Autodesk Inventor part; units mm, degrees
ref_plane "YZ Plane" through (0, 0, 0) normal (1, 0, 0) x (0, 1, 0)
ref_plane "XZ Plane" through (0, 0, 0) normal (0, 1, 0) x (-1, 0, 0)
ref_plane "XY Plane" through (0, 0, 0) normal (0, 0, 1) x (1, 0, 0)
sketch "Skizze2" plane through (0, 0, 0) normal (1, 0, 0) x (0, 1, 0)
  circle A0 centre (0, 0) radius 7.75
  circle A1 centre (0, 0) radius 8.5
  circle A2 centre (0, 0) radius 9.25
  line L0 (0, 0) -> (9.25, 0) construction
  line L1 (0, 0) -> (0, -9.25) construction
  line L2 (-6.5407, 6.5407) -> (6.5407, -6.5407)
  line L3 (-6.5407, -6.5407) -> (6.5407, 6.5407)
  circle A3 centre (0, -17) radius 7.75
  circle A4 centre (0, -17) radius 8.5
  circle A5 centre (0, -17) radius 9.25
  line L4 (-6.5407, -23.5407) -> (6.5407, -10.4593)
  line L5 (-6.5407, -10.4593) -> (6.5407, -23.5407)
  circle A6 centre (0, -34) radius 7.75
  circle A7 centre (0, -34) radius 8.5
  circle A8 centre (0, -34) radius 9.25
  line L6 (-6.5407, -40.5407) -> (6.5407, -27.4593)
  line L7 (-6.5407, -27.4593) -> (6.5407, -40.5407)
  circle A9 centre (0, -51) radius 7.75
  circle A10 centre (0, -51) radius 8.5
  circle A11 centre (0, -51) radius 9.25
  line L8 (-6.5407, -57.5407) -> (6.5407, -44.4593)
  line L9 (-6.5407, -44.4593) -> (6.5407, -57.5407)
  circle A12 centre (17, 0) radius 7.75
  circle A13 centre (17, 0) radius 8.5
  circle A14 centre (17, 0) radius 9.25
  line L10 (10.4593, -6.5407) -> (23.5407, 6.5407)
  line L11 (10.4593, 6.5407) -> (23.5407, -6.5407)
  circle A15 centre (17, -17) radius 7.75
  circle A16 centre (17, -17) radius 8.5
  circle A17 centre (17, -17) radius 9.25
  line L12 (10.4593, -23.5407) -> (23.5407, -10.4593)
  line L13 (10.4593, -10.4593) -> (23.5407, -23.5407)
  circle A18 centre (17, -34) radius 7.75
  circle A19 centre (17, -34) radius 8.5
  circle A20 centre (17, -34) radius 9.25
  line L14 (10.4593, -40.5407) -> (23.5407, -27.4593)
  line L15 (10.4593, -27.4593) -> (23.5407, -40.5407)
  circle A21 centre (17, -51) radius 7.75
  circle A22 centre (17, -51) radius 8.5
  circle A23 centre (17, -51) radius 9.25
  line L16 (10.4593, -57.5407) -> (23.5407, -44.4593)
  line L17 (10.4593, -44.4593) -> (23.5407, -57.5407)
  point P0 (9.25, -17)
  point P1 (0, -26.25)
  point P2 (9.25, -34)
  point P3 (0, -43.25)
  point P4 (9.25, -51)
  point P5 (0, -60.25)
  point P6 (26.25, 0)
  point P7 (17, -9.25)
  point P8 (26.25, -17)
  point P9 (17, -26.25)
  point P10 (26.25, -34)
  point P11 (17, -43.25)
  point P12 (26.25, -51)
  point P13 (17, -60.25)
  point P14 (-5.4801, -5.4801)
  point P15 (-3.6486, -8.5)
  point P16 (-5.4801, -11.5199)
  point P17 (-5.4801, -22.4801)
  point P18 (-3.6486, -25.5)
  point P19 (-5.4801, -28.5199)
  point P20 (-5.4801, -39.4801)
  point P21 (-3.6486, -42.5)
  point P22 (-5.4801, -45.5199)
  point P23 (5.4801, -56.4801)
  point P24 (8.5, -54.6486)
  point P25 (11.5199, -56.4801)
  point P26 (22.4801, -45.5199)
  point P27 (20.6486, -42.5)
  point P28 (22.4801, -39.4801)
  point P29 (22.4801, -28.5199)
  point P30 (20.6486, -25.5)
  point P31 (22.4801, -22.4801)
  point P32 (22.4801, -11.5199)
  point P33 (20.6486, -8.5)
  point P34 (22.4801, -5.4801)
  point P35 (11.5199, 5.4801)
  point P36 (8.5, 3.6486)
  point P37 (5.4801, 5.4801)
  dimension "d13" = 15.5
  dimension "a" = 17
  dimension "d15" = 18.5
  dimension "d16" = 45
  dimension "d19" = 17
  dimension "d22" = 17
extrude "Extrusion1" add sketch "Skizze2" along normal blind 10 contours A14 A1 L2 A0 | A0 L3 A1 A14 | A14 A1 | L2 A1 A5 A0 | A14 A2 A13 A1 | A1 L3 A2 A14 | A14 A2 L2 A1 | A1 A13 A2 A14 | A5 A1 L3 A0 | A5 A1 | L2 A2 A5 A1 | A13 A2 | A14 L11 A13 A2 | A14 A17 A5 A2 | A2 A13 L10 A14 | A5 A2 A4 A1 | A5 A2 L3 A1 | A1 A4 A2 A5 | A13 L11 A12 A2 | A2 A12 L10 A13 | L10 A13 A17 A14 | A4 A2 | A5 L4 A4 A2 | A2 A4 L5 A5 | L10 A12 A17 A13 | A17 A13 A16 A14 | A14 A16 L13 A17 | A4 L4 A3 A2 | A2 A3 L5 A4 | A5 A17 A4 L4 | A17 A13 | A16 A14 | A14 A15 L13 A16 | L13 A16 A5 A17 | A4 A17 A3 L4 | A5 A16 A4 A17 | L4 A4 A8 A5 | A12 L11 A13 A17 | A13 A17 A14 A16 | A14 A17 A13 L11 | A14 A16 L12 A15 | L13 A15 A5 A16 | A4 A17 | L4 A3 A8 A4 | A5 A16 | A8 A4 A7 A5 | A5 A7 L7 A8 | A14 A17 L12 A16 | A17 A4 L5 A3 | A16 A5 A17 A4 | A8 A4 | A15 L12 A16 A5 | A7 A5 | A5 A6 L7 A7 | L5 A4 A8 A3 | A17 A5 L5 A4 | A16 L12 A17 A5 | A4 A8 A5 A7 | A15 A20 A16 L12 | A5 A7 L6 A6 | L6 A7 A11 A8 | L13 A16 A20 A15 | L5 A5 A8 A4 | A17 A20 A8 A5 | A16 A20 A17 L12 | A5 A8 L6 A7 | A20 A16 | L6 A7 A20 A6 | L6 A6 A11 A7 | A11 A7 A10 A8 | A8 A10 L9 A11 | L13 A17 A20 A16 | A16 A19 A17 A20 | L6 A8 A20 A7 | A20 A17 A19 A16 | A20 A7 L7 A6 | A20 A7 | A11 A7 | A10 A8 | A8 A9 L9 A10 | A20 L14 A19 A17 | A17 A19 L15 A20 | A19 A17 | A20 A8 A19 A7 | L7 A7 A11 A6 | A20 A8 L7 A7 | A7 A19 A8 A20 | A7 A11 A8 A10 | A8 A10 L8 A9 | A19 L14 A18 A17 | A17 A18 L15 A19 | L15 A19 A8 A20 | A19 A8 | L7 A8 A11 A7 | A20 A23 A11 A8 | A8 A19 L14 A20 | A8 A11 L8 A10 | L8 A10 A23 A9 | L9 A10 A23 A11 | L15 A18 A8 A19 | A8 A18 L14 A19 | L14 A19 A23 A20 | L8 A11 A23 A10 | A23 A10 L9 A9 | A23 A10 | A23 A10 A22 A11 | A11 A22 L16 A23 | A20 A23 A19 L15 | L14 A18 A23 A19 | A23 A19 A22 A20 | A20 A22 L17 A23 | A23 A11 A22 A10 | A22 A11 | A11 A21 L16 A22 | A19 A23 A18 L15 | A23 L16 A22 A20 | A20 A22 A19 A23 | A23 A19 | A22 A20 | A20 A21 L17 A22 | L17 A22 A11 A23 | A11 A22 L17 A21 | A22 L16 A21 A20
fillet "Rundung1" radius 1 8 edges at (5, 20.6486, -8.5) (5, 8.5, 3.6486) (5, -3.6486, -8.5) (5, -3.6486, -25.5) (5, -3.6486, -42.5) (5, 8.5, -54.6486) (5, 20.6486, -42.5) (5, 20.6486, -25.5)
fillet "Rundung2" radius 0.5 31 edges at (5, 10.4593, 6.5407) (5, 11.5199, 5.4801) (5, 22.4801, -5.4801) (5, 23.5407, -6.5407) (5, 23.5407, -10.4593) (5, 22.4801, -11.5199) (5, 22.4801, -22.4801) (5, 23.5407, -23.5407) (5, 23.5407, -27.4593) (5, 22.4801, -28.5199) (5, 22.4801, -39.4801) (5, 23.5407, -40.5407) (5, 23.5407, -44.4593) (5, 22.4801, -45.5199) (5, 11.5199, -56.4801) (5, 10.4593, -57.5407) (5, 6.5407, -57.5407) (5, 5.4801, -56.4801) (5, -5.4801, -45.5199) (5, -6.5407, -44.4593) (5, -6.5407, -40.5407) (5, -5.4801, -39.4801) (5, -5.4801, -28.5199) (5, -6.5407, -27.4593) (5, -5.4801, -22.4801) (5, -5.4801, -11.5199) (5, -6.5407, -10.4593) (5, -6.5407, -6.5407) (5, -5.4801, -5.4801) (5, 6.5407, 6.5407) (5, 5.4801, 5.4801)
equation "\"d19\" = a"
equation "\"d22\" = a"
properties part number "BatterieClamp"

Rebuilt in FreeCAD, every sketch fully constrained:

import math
import FreeCAD as App
import Part
import Sketcher
Q = App.Units.Quantity


def edges_at(feature, points):
    """Names of the edges that pass closest to the given points."""
    edges = feature.Shape.Edges
    near = lambda p: min(range(len(edges)), key=lambda i: edges[i].distToShape(Part.Vertex(*p))[0])
    return sorted({f"Edge{near(p) + 1}" for p in points})

doc = App.newDocument("Part")
body = doc.addObject("PartDesign::Body", "Body")

# Sketch on YZ plane
sketch1 = body.newObject("Sketcher::SketchObject", "Sketch")
sketch1.AttachmentSupport = (doc.getObject("YZ_Plane"), [""])
sketch1.MapMode = "FlatFace"
sketch1.addGeometry([
    Part.LineSegment(App.Vector(-5.5, -5.5, 0), App.Vector(-6.5, -6.5, 0)),  # 0
    Part.ArcOfCircle(Part.Circle(App.Vector(0, 0, 0), App.Vector(0, 0, 1), 9.2), math.radians(-135), math.radians(-113)),  # 1
    Part.ArcOfCircle(Part.Circle(App.Vector(0, -17, 0), App.Vector(0, 0, 1), 9.2), math.radians(113), math.radians(135)),  # 2
    Part.LineSegment(App.Vector(-6.5, -10.5, 0), App.Vector(-5.5, -11.5, 0)),  # 3
    Part.ArcOfCircle(Part.Circle(App.Vector(0, -17, 0), App.Vector(0, 0, 1), 7.8), math.radians(-135), math.radians(135)),  # 4
    Part.LineSegment(App.Vector(-5.5, -22.5, 0), App.Vector(-6.5, -23.5, 0)),  # 5
    Part.ArcOfCircle(Part.Circle(App.Vector(0, -17, 0), App.Vector(0, 0, 1), 9.2), math.radians(-135), math.radians(-113)),  # 6
    Part.ArcOfCircle(Part.Circle(App.Vector(0, -34, 0), App.Vector(0, 0, 1), 9.2), math.radians(113), math.radians(135)),  # 7
    Part.LineSegment(App.Vector(-6.5, -27.5, 0), App.Vector(-5.5, -28.5, 0)),  # 8
    Part.ArcOfCircle(Part.Circle(App.Vector(0, -34, 0), App.Vector(0, 0, 1), 7.8), math.radians(-135), math.radians(135)),  # 9
    Part.LineSegment(App.Vector(-5.5, -39.5, 0), App.Vector(-6.5, -40.5, 0)),  # 10
    Part.ArcOfCircle(Part.Circle(App.Vector(0, -34, 0), App.Vector(0, 0, 1), 9.2), math.radians(-135), math.radians(-113)),  # 11
    Part.ArcOfCircle(Part.Circle(App.Vector(0, -51, 0), App.Vector(0, 0, 1), 9.2), math.radians(113), math.radians(135)),  # 12
    Part.LineSegment(App.Vector(-6.5, -44.5, 0), App.Vector(-5.5, -45.5, 0)),  # 13
    Part.ArcOfCircle(Part.Circle(App.Vector(0, -51, 0), App.Vector(0, 0, 1), 7.8), math.radians(-45), math.radians(135)),  # 14
    Part.LineSegment(App.Vector(5.5, -56.5, 0), App.Vector(6.5, -57.5, 0)),  # 15
    Part.ArcOfCircle(Part.Circle(App.Vector(0, -51, 0), App.Vector(0, 0, 1), 9.2), math.radians(-45), math.radians(-23)),  # 16
    Part.ArcOfCircle(Part.Circle(App.Vector(17, -51, 0), App.Vector(0, 0, 1), 9.2), math.radians(-157), math.radians(-135)),  # 17
    Part.LineSegment(App.Vector(10.5, -57.5, 0), App.Vector(11.5, -56.5, 0)),  # 18
    Part.ArcOfCircle(Part.Circle(App.Vector(17, -51, 0), App.Vector(0, 0, 1), 7.8), math.radians(45), math.radians(225)),  # 19
    Part.LineSegment(App.Vector(22.5, -45.5, 0), App.Vector(23.5, -44.5, 0)),  # 20
    Part.ArcOfCircle(Part.Circle(App.Vector(17, -51, 0), App.Vector(0, 0, 1), 9.2), math.radians(45), math.radians(67)),  # 21
    Part.ArcOfCircle(Part.Circle(App.Vector(17, -34, 0), App.Vector(0, 0, 1), 9.2), math.radians(-67), math.radians(-45)),  # 22
    Part.LineSegment(App.Vector(23.5, -40.5, 0), App.Vector(22.5, -39.5, 0)),  # 23
    Part.ArcOfCircle(Part.Circle(App.Vector(17, -34, 0), App.Vector(0, 0, 1), 7.8), math.radians(45), math.radians(315)),  # 24
    Part.LineSegment(App.Vector(22.5, -28.5, 0), App.Vector(23.5, -27.5, 0)),  # 25
    Part.ArcOfCircle(Part.Circle(App.Vector(17, -34, 0), App.Vector(0, 0, 1), 9.2), math.radians(45), math.radians(67)),  # 26
    Part.ArcOfCircle(Part.Circle(App.Vector(17, -17, 0), App.Vector(0, 0, 1), 9.2), math.radians(-67), math.radians(-45)),  # 27
    Part.LineSegment(App.Vector(23.5, -23.5, 0), App.Vector(22.5, -22.5, 0)),  # 28
    Part.ArcOfCircle(Part.Circle(App.Vector(17, -17, 0), App.Vector(0, 0, 1), 7.8), math.radians(45), math.radians(315)),  # 29
    Part.LineSegment(App.Vector(22.5, -11.5, 0), App.Vector(23.5, -10.5, 0)),  # 30
    Part.ArcOfCircle(Part.Circle(App.Vector(17, -17, 0), App.Vector(0, 0, 1), 9.2), math.radians(45), math.radians(67)),  # 31
    Part.ArcOfCircle(Part.Circle(App.Vector(17, 0, 0), App.Vector(0, 0, 1), 9.2), math.radians(-67), math.radians(-45)),  # 32
    Part.LineSegment(App.Vector(23.5, -6.5, 0), App.Vector(22.5, -5.5, 0)),  # 33
    Part.ArcOfCircle(Part.Circle(App.Vector(17, 0, 0), App.Vector(0, 0, 1), 7.8), math.radians(135), math.radians(315)),  # 34
    Part.LineSegment(App.Vector(11.5, 5.5, 0), App.Vector(10.5, 6.5, 0)),  # 35
    Part.ArcOfCircle(Part.Circle(App.Vector(17, 0, 0), App.Vector(0, 0, 1), 9.2), math.radians(135), math.radians(157)),  # 36
    Part.ArcOfCircle(Part.Circle(App.Vector(0, 0, 0), App.Vector(0, 0, 1), 9.2), math.radians(23), math.radians(45)),  # 37
    Part.LineSegment(App.Vector(6.5, 6.5, 0), App.Vector(5.5, 5.5, 0)),  # 38
    Part.ArcOfCircle(Part.Circle(App.Vector(0, 0, 0), App.Vector(0, 0, 1), 7.8), math.radians(-135), math.radians(45)),  # 39
], False)
sketch1.addConstraint([
    Sketcher.Constraint("Coincident", 0, 2, 1, 1),
    Sketcher.Constraint("Coincident", 1, 2, 2, 1),
    Sketcher.Constraint("Coincident", 2, 2, 3, 1),
    Sketcher.Constraint("Coincident", 3, 2, 4, 2),
    Sketcher.Constraint("Coincident", 4, 1, 5, 1),
    Sketcher.Constraint("Coincident", 5, 2, 6, 1),
    Sketcher.Constraint("Coincident", 6, 2, 7, 1),
    Sketcher.Constraint("Coincident", 7, 2, 8, 1),
    Sketcher.Constraint("Coincident", 8, 2, 9, 2),
    Sketcher.Constraint("Coincident", 9, 1, 10, 1),
    Sketcher.Constraint("Coincident", 10, 2, 11, 1),
    Sketcher.Constraint("Coincident", 11, 2, 12, 1),
    Sketcher.Constraint("Coincident", 12, 2, 13, 1),
    Sketcher.Constraint("Coincident", 13, 2, 14, 2),
    Sketcher.Constraint("Coincident", 14, 1, 15, 1),
    Sketcher.Constraint("Coincident", 15, 2, 16, 1),
    Sketcher.Constraint("Coincident", 16, 2, 17, 1),
    Sketcher.Constraint("Coincident", 17, 2, 18, 1),
    Sketcher.Constraint("Coincident", 18, 2, 19, 2),
    Sketcher.Constraint("Coincident", 19, 1, 20, 1),
    Sketcher.Constraint("Coincident", 20, 2, 21, 1),
    Sketcher.Constraint("Coincident", 21, 2, 22, 1),
    Sketcher.Constraint("Coincident", 22, 2, 23, 1),
    Sketcher.Constraint("Coincident", 23, 2, 24, 2),
    Sketcher.Constraint("Coincident", 24, 1, 25, 1),
    Sketcher.Constraint("Coincident", 25, 2, 26, 1),
    Sketcher.Constraint("Coincident", 26, 2, 27, 1),
    Sketcher.Constraint("Coincident", 27, 2, 28, 1),
    Sketcher.Constraint("Coincident", 28, 2, 29, 2),
    Sketcher.Constraint("Coincident", 29, 1, 30, 1),
    Sketcher.Constraint("Coincident", 30, 2, 31, 1),
    Sketcher.Constraint("Coincident", 31, 2, 32, 1),
    Sketcher.Constraint("Coincident", 32, 2, 33, 1),
    Sketcher.Constraint("Coincident", 33, 2, 34, 2),
    Sketcher.Constraint("Coincident", 34, 1, 35, 1),
    Sketcher.Constraint("Coincident", 35, 2, 36, 1),
    Sketcher.Constraint("Coincident", 36, 2, 37, 1),
    Sketcher.Constraint("Coincident", 37, 2, 38, 1),
    Sketcher.Constraint("Coincident", 38, 2, 39, 2),
    Sketcher.Constraint("Coincident", 39, 1, 0, 1),
    Sketcher.Constraint("Coincident", 1, 3, -1, 1),
    Sketcher.Constraint("Coincident", 37, 3, -1, 1),
    Sketcher.Constraint("Coincident", 39, 3, -1, 1),
    Sketcher.Constraint("Coincident", 4, 3, 2, 3),
    Sketcher.Constraint("Coincident", 6, 3, 2, 3),
    Sketcher.Constraint("Coincident", 9, 3, 7, 3),
    Sketcher.Constraint("Coincident", 11, 3, 7, 3),
    Sketcher.Constraint("Coincident", 14, 3, 12, 3),
    Sketcher.Constraint("Coincident", 16, 3, 12, 3),
    Sketcher.Constraint("Coincident", 19, 3, 17, 3),
    Sketcher.Constraint("Coincident", 21, 3, 17, 3),
    Sketcher.Constraint("Coincident", 24, 3, 22, 3),
    Sketcher.Constraint("Coincident", 26, 3, 22, 3),
    Sketcher.Constraint("Coincident", 29, 3, 27, 3),
    Sketcher.Constraint("Coincident", 31, 3, 27, 3),
    Sketcher.Constraint("Coincident", 34, 3, 32, 3),
    Sketcher.Constraint("Coincident", 36, 3, 32, 3),
    Sketcher.Constraint("Equal", 1, 2),
    Sketcher.Constraint("Equal", 2, 6),
    Sketcher.Constraint("Equal", 6, 7),
    Sketcher.Constraint("Equal", 4, 9),
    Sketcher.Constraint("Equal", 7, 11),
    Sketcher.Constraint("Equal", 11, 12),
    Sketcher.Constraint("Equal", 9, 14),
    Sketcher.Constraint("Equal", 12, 16),
    Sketcher.Constraint("Equal", 16, 17),
    Sketcher.Constraint("Equal", 14, 19),
    Sketcher.Constraint("Equal", 17, 21),
    Sketcher.Constraint("Equal", 21, 22),
    Sketcher.Constraint("Equal", 19, 24),
    Sketcher.Constraint("Equal", 22, 26),
    Sketcher.Constraint("Equal", 26, 27),
    Sketcher.Constraint("Equal", 24, 29),
    Sketcher.Constraint("Equal", 27, 31),
    Sketcher.Constraint("Equal", 31, 32),
    Sketcher.Constraint("Equal", 29, 34),
    Sketcher.Constraint("Equal", 32, 36),
    Sketcher.Constraint("Equal", 36, 37),
    Sketcher.Constraint("Equal", 34, 39),
    Sketcher.Constraint("PointOnObject", 2, 3, -2),
    Sketcher.Constraint("PointOnObject", 7, 3, -2),
    Sketcher.Constraint("PointOnObject", 12, 3, -2),
    Sketcher.Constraint("PointOnObject", 32, 3, -1),
    Sketcher.Constraint("Perpendicular", 0, 3),
    Sketcher.Constraint("Perpendicular", 3, 5),
    Sketcher.Constraint("Perpendicular", 5, 8),
    Sketcher.Constraint("Perpendicular", 8, 10),
    Sketcher.Constraint("Perpendicular", 10, 13),
    Sketcher.Constraint("Parallel", 13, 15),
    Sketcher.Constraint("Perpendicular", 15, 18),
    Sketcher.Constraint("Parallel", 18, 20),
    Sketcher.Constraint("Perpendicular", 20, 23),
    Sketcher.Constraint("Perpendicular", 23, 25),
    Sketcher.Constraint("Perpendicular", 25, 28),
    Sketcher.Constraint("Perpendicular", 28, 30),
    Sketcher.Constraint("Perpendicular", 30, 33),
    Sketcher.Constraint("Parallel", 33, 35),
    Sketcher.Constraint("Perpendicular", 35, 38),
    Sketcher.Constraint("Horizontal", 16, 3, 17, 3),
    Sketcher.Constraint("Horizontal", 11, 3, 22, 3),
    Sketcher.Constraint("Horizontal", 6, 3, 27, 3),
    Sketcher.Constraint("Horizontal", 15, 2, 17, 2),
    Sketcher.Constraint("Horizontal", 14, 1, 18, 2),
    Sketcher.Constraint("Horizontal", 13, 2, 19, 1),
    Sketcher.Constraint("Horizontal", 11, 2, 21, 2),
    Sketcher.Constraint("Horizontal", 10, 2, 22, 2),
    Sketcher.Constraint("Horizontal", 8, 2, 24, 1),
    Sketcher.Constraint("Horizontal", 6, 2, 26, 2),
    Sketcher.Constraint("Horizontal", 5, 2, 27, 2),
    Sketcher.Constraint("Horizontal", 3, 2, 29, 1),
    Sketcher.Constraint("Horizontal", 1, 2, 31, 2),
    Sketcher.Constraint("Horizontal", 0, 2, 32, 2),
    Sketcher.Constraint("Horizontal", 35, 2, 37, 2),
    Sketcher.Constraint("Vertical", 0, 2, 2, 2),
    Sketcher.Constraint("Vertical", 3, 2, 4, 1),
    Sketcher.Constraint("Vertical", 1, 2, 6, 2),
    Sketcher.Constraint("Vertical", 5, 2, 7, 2),
    Sketcher.Constraint("Vertical", 8, 2, 9, 1),
    Sketcher.Constraint("Vertical", 6, 2, 11, 2),
    Sketcher.Constraint("Vertical", 10, 2, 12, 2),
    Sketcher.Constraint("Vertical", 18, 2, 34, 1),
    Sketcher.Constraint("Radius", 1, Q("9.25 mm")),
    Sketcher.Constraint("Radius", 4, Q("7.75 mm")),
    Sketcher.Constraint("DistanceY", 2, 3, -1, 1, Q("17 mm")),
    Sketcher.Constraint("DistanceX", -1, 1, 17, 3, Q("17 mm")),
    Sketcher.Constraint("DistanceX", 3, 2, -1, 1, Q("5.48 mm")),
    Sketcher.Constraint("DistanceX", -1, 1, 14, 1, Q("5.48 mm")),
])
pad1 = body.newObject("PartDesign::Pad", "Pad")
pad1.Profile = sketch1
pad1.Length = 10
doc.recompute()

fillet = body.newObject("PartDesign::Fillet", "Fillet")
fillet.Base = (pad1, edges_at(pad1, [
    (5, 20.649, -8.5),
    (5, 8.5, 3.649),
    (5, -3.649, -8.5),
    (5, -3.649, -25.5),
    (5, -3.649, -42.5),
    (5, 8.5, -54.649),
    (5, 20.649, -42.5),
    (5, 20.649, -25.5),
]))
fillet.Radius = 1
doc.recompute()

fillet2 = body.newObject("PartDesign::Fillet", "Fillet001")
fillet2.Base = (fillet, edges_at(fillet, [
    (5, 10.459, 6.541),
    (5, 11.52, 5.48),
    (5, 22.48, -5.48),
    (5, 23.541, -6.541),
    (5, 23.541, -10.459),
    (5, 22.48, -11.52),
    (5, 22.48, -22.48),
    (5, 23.541, -23.541),
    (5, 23.541, -27.459),
    (5, 22.48, -28.52),
    (5, 22.48, -39.48),
    (5, 23.541, -40.541),
    (5, 23.541, -44.459),
    (5, 22.48, -45.52),
    (5, 11.52, -56.48),
    (5, 10.459, -57.541),
    (5, 6.541, -57.541),
    (5, 5.48, -56.48),
    (5, -5.48, -45.52),
    (5, -6.541, -44.459),
    (5, -6.541, -40.541),
    (5, -5.48, -39.48),
    (5, -5.48, -28.52),
    (5, -6.541, -27.459),
    (5, -5.48, -22.48),
    (5, -5.48, -11.52),
    (5, -6.541, -10.459),
    (5, -6.541, -6.541),
    (5, -5.48, -5.48),
    (5, 6.541, 6.541),
    (5, 5.48, 5.48),
]))
fillet2.Radius = 0.5

doc.recompute()
